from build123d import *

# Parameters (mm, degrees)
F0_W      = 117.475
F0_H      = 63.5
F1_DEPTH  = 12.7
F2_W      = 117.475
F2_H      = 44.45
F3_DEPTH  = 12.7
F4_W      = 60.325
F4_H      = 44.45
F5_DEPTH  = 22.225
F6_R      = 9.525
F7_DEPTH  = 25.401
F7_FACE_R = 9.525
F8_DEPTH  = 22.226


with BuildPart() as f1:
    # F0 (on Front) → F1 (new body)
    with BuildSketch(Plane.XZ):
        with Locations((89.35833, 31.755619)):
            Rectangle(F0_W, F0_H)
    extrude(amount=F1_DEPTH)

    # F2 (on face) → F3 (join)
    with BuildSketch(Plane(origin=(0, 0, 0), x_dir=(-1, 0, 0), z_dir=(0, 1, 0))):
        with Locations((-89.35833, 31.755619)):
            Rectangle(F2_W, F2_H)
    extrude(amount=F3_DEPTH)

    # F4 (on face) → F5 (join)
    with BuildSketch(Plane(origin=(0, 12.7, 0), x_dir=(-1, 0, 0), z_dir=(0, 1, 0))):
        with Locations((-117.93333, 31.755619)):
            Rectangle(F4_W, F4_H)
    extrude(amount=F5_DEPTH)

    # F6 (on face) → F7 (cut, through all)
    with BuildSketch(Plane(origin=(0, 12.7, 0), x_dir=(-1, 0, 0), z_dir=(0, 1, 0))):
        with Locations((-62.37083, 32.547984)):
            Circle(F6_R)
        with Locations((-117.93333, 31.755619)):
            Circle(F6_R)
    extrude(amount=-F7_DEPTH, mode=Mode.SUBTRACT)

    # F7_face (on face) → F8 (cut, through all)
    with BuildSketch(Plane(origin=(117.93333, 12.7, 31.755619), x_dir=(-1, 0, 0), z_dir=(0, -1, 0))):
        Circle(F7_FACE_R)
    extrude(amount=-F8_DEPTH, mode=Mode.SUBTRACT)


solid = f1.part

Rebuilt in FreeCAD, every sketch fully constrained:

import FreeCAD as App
import Part
import Sketcher

V = App.Vector
Q = App.Units.Quantity

doc = App.newDocument("Part")
body = doc.addObject("PartDesign::Body", "Body")

# Sketch on XZ plane
sketch1 = body.newObject("Sketcher::SketchObject", "Sketch")
sketch1.AttachmentSupport = (doc.getObject("XZ_Plane"), [""])
sketch1.MapMode = "FlatFace"
sketch1.addGeometry([
    Part.LineSegment(V(31, 64, 0), V(31, 0, 0)),
    Part.LineSegment(V(31, 0, 0), V(148, 0, 0)),
    Part.LineSegment(V(148, 0, 0), V(148, 64, 0)),
    Part.LineSegment(V(148, 64, 0), V(31, 64, 0)),
], False)
sketch1.addConstraint([
    Sketcher.Constraint("Coincident", 0, 2, 1, 1),
    Sketcher.Constraint("Coincident", 1, 2, 2, 1),
    Sketcher.Constraint("Coincident", 2, 2, 3, 1),
    Sketcher.Constraint("Coincident", 3, 2, 0, 1),
    Sketcher.Constraint("Vertical", 0),
    Sketcher.Constraint("Horizontal", 1),
    Sketcher.Constraint("Vertical", 2),
    Sketcher.Constraint("Horizontal", 3),
    Sketcher.Constraint("DistanceY", 0, 2, 0, 1, Q("2.5 in")),
    Sketcher.Constraint("DistanceX", 1, 1, 1, 2, Q("4.625 in")),
    Sketcher.Constraint("DistanceX", -1, 1, 0, 2, 30.62083),
    Sketcher.Constraint("DistanceY", -1, 1, 0, 2, 0.005619),
])
pad1 = body.newObject("PartDesign::Pad", "Pad")
pad1.Profile = sketch1
pad1.Length = Q("0.5 in")

# Sketch on XZ plane
sketch2 = body.newObject("Sketcher::SketchObject", "Sketch001")
sketch2.AttachmentSupport = (doc.getObject("XZ_Plane"), [""])
sketch2.MapMode = "FlatFace"
sketch2.addGeometry([
    Part.LineSegment(V(148, 54, 0), V(148, 10, 0)),
    Part.LineSegment(V(148, 10, 0), V(31, 10, 0)),
    Part.LineSegment(V(31, 10, 0), V(31, 54, 0)),
    Part.LineSegment(V(31, 54, 0), V(148, 54, 0)),
], False)
sketch2.addConstraint([
    Sketcher.Constraint("Coincident", 0, 2, 1, 1),
    Sketcher.Constraint("Coincident", 1, 2, 2, 1),
    Sketcher.Constraint("Coincident", 2, 2, 3, 1),
    Sketcher.Constraint("Coincident", 3, 2, 0, 1),
    Sketcher.Constraint("Vertical", 0),
    Sketcher.Constraint("Horizontal", 1),
    Sketcher.Constraint("Vertical", 2),
    Sketcher.Constraint("Horizontal", 3),
    Sketcher.Constraint("DistanceY", 0, 2, 0, 1, Q("1.75 in")),
    Sketcher.Constraint("DistanceX", 1, 2, 1, 1, Q("4.625 in")),
    Sketcher.Constraint("DistanceX", -1, 1, 0, 2, 148.09583),
    Sketcher.Constraint("DistanceY", -1, 1, 0, 2, 9.530619),
])
pad2 = body.newObject("PartDesign::Pad", "Pad001")
pad2.Profile = sketch2
pad2.Length = Q("0.5 in")
pad2.Reversed = True

# Sketch on XZ plane
sketch3 = body.newObject("Sketcher::SketchObject", "Sketch002")
sketch3.AttachmentSupport = (doc.getObject("XZ_Plane"), [""])
sketch3.MapMode = "FlatFace"
sketch3.AttachmentOffset = App.Placement(V(0, 0, -0.5 * 25.4), App.Rotation())
sketch3.addGeometry([
    Part.LineSegment(V(148, 54, 0), V(148, 10, 0)),
    Part.LineSegment(V(148, 10, 0), V(88, 10, 0)),
    Part.LineSegment(V(88, 10, 0), V(88, 54, 0)),
    Part.LineSegment(V(88, 54, 0), V(148, 54, 0)),
], False)
sketch3.addConstraint([
    Sketcher.Constraint("Coincident", 0, 2, 1, 1),
    Sketcher.Constraint("Coincident", 1, 2, 2, 1),
    Sketcher.Constraint("Coincident", 2, 2, 3, 1),
    Sketcher.Constraint("Coincident", 3, 2, 0, 1),
    Sketcher.Constraint("Vertical", 0),
    Sketcher.Constraint("Horizontal", 1),
    Sketcher.Constraint("Vertical", 2),
    Sketcher.Constraint("Horizontal", 3),
    Sketcher.Constraint("DistanceY", 0, 2, 0, 1, Q("1.75 in")),
    Sketcher.Constraint("DistanceX", 1, 2, 1, 1, Q("2.375 in")),
    Sketcher.Constraint("DistanceX", -1, 1, 0, 2, 148.09583),
    Sketcher.Constraint("DistanceY", -1, 1, 0, 2, 9.530619),
])
pad3 = body.newObject("PartDesign::Pad", "Pad002")
pad3.Profile = sketch3
pad3.Length = Q("0.875 in")
pad3.Reversed = True

# Sketch on XZ plane
sketch4 = body.newObject("Sketcher::SketchObject", "Sketch003")
sketch4.AttachmentSupport = (doc.getObject("XZ_Plane"), [""])
sketch4.MapMode = "FlatFace"
sketch4.AttachmentOffset = App.Placement(V(0, 0, -0.5 * 25.4), App.Rotation())
sketch4.addGeometry([
    Part.Circle(V(62, 33, 0), V(0, 0, 1), 10),
    Part.Circle(V(118, 32, 0), V(0, 0, 1), 10),
], False)
sketch4.addConstraint([
    Sketcher.Constraint("Equal", 0, 1),
    Sketcher.Constraint("Diameter", 0, Q("0.75 in")),
    Sketcher.Constraint("DistanceX", 0, 3, 1, 3, Q("2.1875 in")),
    Sketcher.Constraint("DistanceX", -1, 1, 0, 3, 62.37083),
    Sketcher.Constraint("DistanceY", -1, 1, 1, 3, 31.755619),
    Sketcher.Constraint("DistanceY", -1, 1, 0, 3, 32.547984),
])
pocket1 = body.newObject("PartDesign::Pocket", "Pocket")
pocket1.Profile = sketch4
pocket1.Type = "ThroughAll"
pocket1.Reversed = True

# Sketch on XZ plane
sketch5 = body.newObject("Sketcher::SketchObject", "Sketch004")
sketch5.AttachmentSupport = (doc.getObject("XZ_Plane"), [""])
sketch5.MapMode = "FlatFace"
sketch5.AttachmentOffset = App.Placement(V(0, 0, -0.5 * 25.4), App.Rotation())
sketch5.addGeometry(Part.Circle(V(118, 32, 0), V(0, 0, 1), 10), False)
sketch5.addConstraint([
    Sketcher.Constraint("Diameter", 0, Q("0.75 in")),
    Sketcher.Constraint("DistanceX", -1, 1, 0, 3, 117.93333),
    Sketcher.Constraint("DistanceY", -1, 1, 0, 3, 31.755619),
])
pocket2 = body.newObject("PartDesign::Pocket", "Pocket001")
pocket2.Profile = sketch5
pocket2.Type = "ThroughAll"

doc.recompute()
